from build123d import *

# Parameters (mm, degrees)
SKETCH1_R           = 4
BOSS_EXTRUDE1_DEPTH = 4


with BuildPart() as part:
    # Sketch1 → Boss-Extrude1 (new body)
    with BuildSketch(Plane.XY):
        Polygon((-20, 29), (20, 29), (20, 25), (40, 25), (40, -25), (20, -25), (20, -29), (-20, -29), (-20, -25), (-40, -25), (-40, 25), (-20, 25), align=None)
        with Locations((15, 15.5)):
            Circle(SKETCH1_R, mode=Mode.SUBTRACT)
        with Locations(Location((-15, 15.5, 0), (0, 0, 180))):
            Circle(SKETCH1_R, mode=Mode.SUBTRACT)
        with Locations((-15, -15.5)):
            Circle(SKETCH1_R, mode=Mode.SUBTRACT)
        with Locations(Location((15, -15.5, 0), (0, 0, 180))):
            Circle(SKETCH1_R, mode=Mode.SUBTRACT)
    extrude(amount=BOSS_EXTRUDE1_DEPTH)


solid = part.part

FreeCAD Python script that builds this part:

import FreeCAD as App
import Part
import Sketcher

doc = App.newDocument("Part")
params = doc.addObject("Spreadsheet::Sheet", "Params")
for row, (alias, value) in enumerate([
    ("sketch1_diameter", "8 mm"),
    ("sketch1_width", "40 mm"),
    ("sketch1_width2", "20 mm"),
    ("sketch1_height", "4 mm"),
    ("sketch1_height2", "50 mm"),
    ("pad1_length", "4 mm"),
], start=1):
    params.set(f"A{row}", alias)
    params.set(f"B{row}", "=" + value)
    params.setAlias(f"B{row}", alias)

body = doc.addObject("PartDesign::Body", "Body")

# Sketch on XY plane
sketch1 = body.newObject("Sketcher::SketchObject", "Sketch")
sketch1.AttachmentSupport = (doc.getObject("XY_Plane"), [""])
sketch1.MapMode = "FlatFace"
sketch1.addGeometry(Part.LineSegment(App.Vector(20, 29, 0), App.Vector(-20, 29, 0)), False)
sketch1.addGeometry(Part.LineSegment(App.Vector(-20, 29, 0), App.Vector(-20, 25, 0)), False)
sketch1.addGeometry(Part.LineSegment(App.Vector(-20, 25, 0), App.Vector(-40, 25, 0)), False)
sketch1.addGeometry(Part.LineSegment(App.Vector(-40, 25, 0), App.Vector(-40, -25, 0)), False)
sketch1.addGeometry(Part.LineSegment(App.Vector(-40, -25, 0), App.Vector(-20, -25, 0)), False)
sketch1.addGeometry(Part.LineSegment(App.Vector(-20, -25, 0), App.Vector(-20, -29, 0)), False)
sketch1.addGeometry(Part.LineSegment(App.Vector(-20, -29, 0), App.Vector(20, -29, 0)), False)
sketch1.addGeometry(Part.LineSegment(App.Vector(20, -29, 0), App.Vector(20, -25, 0)), False)
sketch1.addGeometry(Part.LineSegment(App.Vector(20, -25, 0), App.Vector(40, -25, 0)), False)
sketch1.addGeometry(Part.LineSegment(App.Vector(40, -25, 0), App.Vector(40, 25, 0)), False)
sketch1.addGeometry(Part.LineSegment(App.Vector(40, 25, 0), App.Vector(20, 25, 0)), False)
sketch1.addGeometry(Part.LineSegment(App.Vector(20, 25, 0), App.Vector(20, 29, 0)), False)
sketch1.addGeometry(Part.Circle(App.Vector(15, -15.5, 0), App.Vector(0, 0, 1), 4), False)
sketch1.addGeometry(Part.Circle(App.Vector(-15, -15.5, 0), App.Vector(0, 0, 1), 4), False)
sketch1.addGeometry(Part.Circle(App.Vector(15, 15.5, 0), App.Vector(0, 0, 1), 4), False)
sketch1.addGeometry(Part.Circle(App.Vector(-15, 15.5, 0), App.Vector(0, 0, 1), 4), False)
sketch1.addConstraint(Sketcher.Constraint("Coincident", 0, 2, 1, 1))
sketch1.addConstraint(Sketcher.Constraint("Coincident", 1, 2, 2, 1))
sketch1.addConstraint(Sketcher.Constraint("Coincident", 2, 2, 3, 1))
sketch1.addConstraint(Sketcher.Constraint("Coincident", 3, 2, 4, 1))
sketch1.addConstraint(Sketcher.Constraint("Coincident", 4, 2, 5, 1))
sketch1.addConstraint(Sketcher.Constraint("Coincident", 5, 2, 6, 1))
sketch1.addConstraint(Sketcher.Constraint("Coincident", 6, 2, 7, 1))
sketch1.addConstraint(Sketcher.Constraint("Coincident", 7, 2, 8, 1))
sketch1.addConstraint(Sketcher.Constraint("Coincident", 8, 2, 9, 1))
sketch1.addConstraint(Sketcher.Constraint("Coincident", 9, 2, 10, 1))
sketch1.addConstraint(Sketcher.Constraint("Coincident", 10, 2, 11, 1))
sketch1.addConstraint(Sketcher.Constraint("Coincident", 11, 2, 0, 1))
sketch1.addConstraint(Sketcher.Constraint("Horizontal", 0))
sketch1.addConstraint(Sketcher.Constraint("Vertical", 1))
sketch1.addConstraint(Sketcher.Constraint("Horizontal", 2))
sketch1.addConstraint(Sketcher.Constraint("Vertical", 3))
sketch1.addConstraint(Sketcher.Constraint("Horizontal", 4))
sketch1.addConstraint(Sketcher.Constraint("Vertical", 5))
sketch1.addConstraint(Sketcher.Constraint("Horizontal", 6))
sketch1.addConstraint(Sketcher.Constraint("Vertical", 7))
sketch1.addConstraint(Sketcher.Constraint("Horizontal", 8))
sketch1.addConstraint(Sketcher.Constraint("Vertical", 9))
sketch1.addConstraint(Sketcher.Constraint("Horizontal", 10))
sketch1.addConstraint(Sketcher.Constraint("Vertical", 11))
sketch1.addConstraint(Sketcher.Constraint("Equal", 12, 13))
sketch1.addConstraint(Sketcher.Constraint("Equal", 13, 14))
sketch1.addConstraint(Sketcher.Constraint("Equal", 14, 15))
sketch1.addConstraint(Sketcher.Constraint("Symmetric", 13, 3, 14, 3, -1, 1))
sketch1.addConstraint(Sketcher.Constraint("Symmetric", 12, 3, 15, 3, -1, 1))
sketch1.addConstraint(Sketcher.Constraint("Symmetric", 0, 2, 6, 2, -1, 1))
sketch1.addConstraint(Sketcher.Constraint("Symmetric", 2, 2, 8, 2, -1, 1))
sketch1.addConstraint(Sketcher.Constraint("Symmetric", 4, 2, 10, 2, -1, 1))
sketch1.addConstraint(Sketcher.Constraint("Symmetric", 12, 3, 13, 3, -2))
sketch1.addConstraint(Sketcher.Constraint("Symmetric", 4, 2, 7, 2, -2))
sketch1.addConstraint(Sketcher.Constraint("Diameter", 12, 8.0))
sketch1.addConstraint(Sketcher.Constraint("DistanceX", 0, 2, 0, 1, 40.0))
sketch1.addConstraint(Sketcher.Constraint("DistanceX", 2, 2, 2, 1, 20.0))
sketch1.addConstraint(Sketcher.Constraint("DistanceY", 1, 2, 1, 1, 4.0))
sketch1.addConstraint(Sketcher.Constraint("DistanceY", 3, 2, 3, 1, 50.0))
sketch1.addConstraint(Sketcher.Constraint("DistanceX", -1, 1, 12, 3, 15.0))
sketch1.addConstraint(Sketcher.Constraint("DistanceY", 12, 3, 14, 3, 31.0))
sketch1.setExpression("Constraints[34]", "Params.sketch1_diameter")
sketch1.setExpression("Constraints[35]", "Params.sketch1_width")
sketch1.setExpression("Constraints[36]", "Params.sketch1_width2")
sketch1.setExpression("Constraints[37]", "Params.sketch1_height")
sketch1.setExpression("Constraints[38]", "Params.sketch1_height2")
pad1 = body.newObject("PartDesign::Pad", "Pad")
pad1.Profile = sketch1
pad1.setExpression("Length", "Params.pad1_length")

doc.recompute()
